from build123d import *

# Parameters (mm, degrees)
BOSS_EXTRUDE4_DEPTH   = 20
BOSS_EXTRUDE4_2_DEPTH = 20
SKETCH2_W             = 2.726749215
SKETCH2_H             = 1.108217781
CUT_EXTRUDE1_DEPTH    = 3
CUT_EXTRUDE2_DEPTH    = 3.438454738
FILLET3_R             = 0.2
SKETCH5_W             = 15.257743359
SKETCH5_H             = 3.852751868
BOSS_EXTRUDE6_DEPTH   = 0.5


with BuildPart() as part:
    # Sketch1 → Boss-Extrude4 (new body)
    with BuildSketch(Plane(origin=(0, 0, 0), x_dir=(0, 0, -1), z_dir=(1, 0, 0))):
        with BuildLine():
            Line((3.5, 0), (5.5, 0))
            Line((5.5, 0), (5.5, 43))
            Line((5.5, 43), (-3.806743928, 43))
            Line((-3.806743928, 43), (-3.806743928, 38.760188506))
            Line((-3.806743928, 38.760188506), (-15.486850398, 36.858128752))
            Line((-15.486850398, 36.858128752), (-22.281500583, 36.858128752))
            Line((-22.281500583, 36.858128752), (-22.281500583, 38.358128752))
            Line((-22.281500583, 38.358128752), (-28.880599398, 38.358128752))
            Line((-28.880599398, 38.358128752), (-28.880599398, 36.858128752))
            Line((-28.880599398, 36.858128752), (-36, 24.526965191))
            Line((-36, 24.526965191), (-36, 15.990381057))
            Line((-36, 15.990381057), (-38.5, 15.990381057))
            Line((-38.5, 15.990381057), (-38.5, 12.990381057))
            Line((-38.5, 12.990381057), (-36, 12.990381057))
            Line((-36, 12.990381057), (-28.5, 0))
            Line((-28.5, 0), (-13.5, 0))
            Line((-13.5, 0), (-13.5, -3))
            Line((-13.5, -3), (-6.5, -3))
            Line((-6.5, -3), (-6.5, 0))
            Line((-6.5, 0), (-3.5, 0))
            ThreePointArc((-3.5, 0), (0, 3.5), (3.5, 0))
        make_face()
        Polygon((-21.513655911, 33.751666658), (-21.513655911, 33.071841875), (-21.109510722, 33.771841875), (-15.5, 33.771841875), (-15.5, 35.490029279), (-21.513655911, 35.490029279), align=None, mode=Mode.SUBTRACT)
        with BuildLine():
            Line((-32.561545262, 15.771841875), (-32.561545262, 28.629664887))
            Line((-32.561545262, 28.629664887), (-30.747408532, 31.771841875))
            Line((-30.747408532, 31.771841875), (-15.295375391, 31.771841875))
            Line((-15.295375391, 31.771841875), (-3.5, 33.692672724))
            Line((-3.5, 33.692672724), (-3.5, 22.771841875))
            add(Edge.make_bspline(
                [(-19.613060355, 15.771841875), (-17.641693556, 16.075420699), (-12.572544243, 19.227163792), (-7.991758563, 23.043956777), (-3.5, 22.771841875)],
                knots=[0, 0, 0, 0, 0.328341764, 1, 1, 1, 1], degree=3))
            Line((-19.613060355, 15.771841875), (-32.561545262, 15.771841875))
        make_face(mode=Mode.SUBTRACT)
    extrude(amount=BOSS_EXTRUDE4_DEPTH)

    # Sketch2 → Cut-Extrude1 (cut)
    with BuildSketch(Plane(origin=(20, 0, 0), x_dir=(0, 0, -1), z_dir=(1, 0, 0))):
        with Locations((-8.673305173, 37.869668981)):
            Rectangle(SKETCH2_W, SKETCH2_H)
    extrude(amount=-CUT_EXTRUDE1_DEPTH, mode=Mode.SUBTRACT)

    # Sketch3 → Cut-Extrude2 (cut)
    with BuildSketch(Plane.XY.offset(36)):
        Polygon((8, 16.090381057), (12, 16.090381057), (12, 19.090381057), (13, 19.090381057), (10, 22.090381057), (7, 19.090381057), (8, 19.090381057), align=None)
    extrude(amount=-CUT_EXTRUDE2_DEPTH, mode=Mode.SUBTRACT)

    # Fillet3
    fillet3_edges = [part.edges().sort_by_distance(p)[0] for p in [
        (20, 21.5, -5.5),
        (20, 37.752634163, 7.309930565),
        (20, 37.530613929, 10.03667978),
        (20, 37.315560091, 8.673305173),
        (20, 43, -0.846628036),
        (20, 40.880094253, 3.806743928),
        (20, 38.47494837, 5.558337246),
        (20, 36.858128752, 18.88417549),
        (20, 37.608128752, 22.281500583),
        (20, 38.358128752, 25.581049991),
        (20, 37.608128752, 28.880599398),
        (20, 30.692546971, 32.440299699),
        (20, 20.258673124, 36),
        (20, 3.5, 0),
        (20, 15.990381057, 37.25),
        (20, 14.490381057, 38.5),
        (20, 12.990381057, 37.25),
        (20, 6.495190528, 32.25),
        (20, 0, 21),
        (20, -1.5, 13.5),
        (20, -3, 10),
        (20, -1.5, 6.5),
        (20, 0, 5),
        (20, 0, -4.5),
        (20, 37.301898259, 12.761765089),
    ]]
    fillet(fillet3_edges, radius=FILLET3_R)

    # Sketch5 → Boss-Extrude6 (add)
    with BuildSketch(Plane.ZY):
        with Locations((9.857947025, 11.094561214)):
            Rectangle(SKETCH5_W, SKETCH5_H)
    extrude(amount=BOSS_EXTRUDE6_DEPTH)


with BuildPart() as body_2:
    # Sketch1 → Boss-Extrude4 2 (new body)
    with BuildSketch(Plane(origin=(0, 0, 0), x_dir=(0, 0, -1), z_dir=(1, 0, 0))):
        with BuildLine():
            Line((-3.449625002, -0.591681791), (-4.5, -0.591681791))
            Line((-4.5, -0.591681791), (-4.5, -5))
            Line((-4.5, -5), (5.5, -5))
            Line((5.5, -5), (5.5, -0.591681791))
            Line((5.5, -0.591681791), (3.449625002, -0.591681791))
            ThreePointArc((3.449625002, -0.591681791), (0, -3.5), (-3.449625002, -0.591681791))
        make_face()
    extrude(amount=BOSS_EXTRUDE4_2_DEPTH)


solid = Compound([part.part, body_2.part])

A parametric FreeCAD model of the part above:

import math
import FreeCAD as App
import Part
import Sketcher
from FreeCAD import Vector
Q = App.Units.Quantity


def edges_at(feature, points):
    """Names of the edges that pass closest to the given points."""
    edges = feature.Shape.Edges
    near = lambda p: min(range(len(edges)), key=lambda i: edges[i].distToShape(Part.Vertex(*p))[0])
    return sorted({f"Edge{near(p) + 1}" for p in points})


def add_polygon(sketch, points):
    """Adds a closed chain of lines whose ends are joined by coincident constraints."""
    first, n = sketch.GeometryCount, len(points)
    for a, b in zip(points, points[1:] + points[:1]):
        sketch.addGeometry(Part.LineSegment(App.Vector(*a, 0), App.Vector(*b, 0)), False)
    for i in range(n):
        sketch.addConstraint(Sketcher.Constraint("Coincident", first + i, 2, first + (i + 1) % n, 1))

doc = App.newDocument("Part")
body = doc.addObject("PartDesign::Body", "Body")

# Sketch on YZ plane
sketch1 = body.newObject("Sketcher::SketchObject", "Sketch")
sketch1.AttachmentSupport = (doc.getObject("YZ_Plane"), [""])
sketch1.MapMode = "FlatFace"
sketch1.addGeometry(Part.LineSegment(Vector(0, -3.5, 0), Vector(0, -5.5, 0)), False)  # 0
sketch1.addGeometry(Part.LineSegment(Vector(0, -5.5, 0), Vector(43, -5.5, 0)), False)  # 1
sketch1.addGeometry(Part.LineSegment(Vector(43, -5.5, 0), Vector(43, 3.806744, 0)), False)  # 2
sketch1.addGeometry(Part.LineSegment(Vector(43, 3.806744, 0), Vector(38.760189, 3.806744, 0)), False)  # 3
sketch1.addGeometry(Part.LineSegment(Vector(38.760189, 3.806744, 0), Vector(36.858129, 15.48685, 0)), False)  # 4
sketch1.addGeometry(Part.LineSegment(Vector(36.858129, 15.48685, 0), Vector(36.858129, 22.281501, 0)), False)  # 5
sketch1.addGeometry(Part.LineSegment(Vector(36.858129, 22.281501, 0), Vector(38.358129, 22.281501, 0)), False)  # 6
sketch1.addGeometry(Part.LineSegment(Vector(38.358129, 22.281501, 0), Vector(38.358129, 28.880599, 0)), False)  # 7
sketch1.addGeometry(Part.LineSegment(Vector(38.358129, 28.880599, 0), Vector(36.858129, 28.880599, 0)), False)  # 8
sketch1.addGeometry(Part.LineSegment(Vector(36.858129, 28.880599, 0), Vector(24.526965, 36, 0)), False)  # 9
sketch1.addGeometry(Part.LineSegment(Vector(24.526965, 36, 0), Vector(15.990381, 36, 0)), False)  # 10
sketch1.addGeometry(Part.LineSegment(Vector(15.990381, 36, 0), Vector(15.990381, 38.5, 0)), False)  # 11
sketch1.addGeometry(Part.LineSegment(Vector(15.990381, 38.5, 0), Vector(12.990381, 38.5, 0)), False)  # 12
sketch1.addGeometry(Part.LineSegment(Vector(12.990381, 38.5, 0), Vector(12.990381, 36, 0)), False)  # 13
sketch1.addGeometry(Part.LineSegment(Vector(12.990381, 36, 0), Vector(0, 28.5, 0)), False)  # 14
sketch1.addGeometry(Part.LineSegment(Vector(0, 28.5, 0), Vector(0, 13.5, 0)), False)  # 15
sketch1.addGeometry(Part.LineSegment(Vector(0, 13.5, 0), Vector(-3, 13.5, 0)), False)  # 16
sketch1.addGeometry(Part.LineSegment(Vector(-3, 13.5, 0), Vector(-3, 6.5, 0)), False)  # 17
sketch1.addGeometry(Part.LineSegment(Vector(-3, 6.5, 0), Vector(0, 6.5, 0)), False)  # 18
sketch1.addGeometry(Part.LineSegment(Vector(0, 6.5, 0), Vector(0, 3.5, 0)), False)  # 19
sketch1.addGeometry(Part.ArcOfCircle(Part.Circle(Vector(0, 0, 0), Vector(0, 0, 1), 3.5), math.radians(-90), math.radians(90)), False)  # 20
sketch1.addGeometry(Part.LineSegment(Vector(15.771842, 19.61306, 0), Vector(15.771842, 32.561545, 0)), False)  # 21
sketch1.addGeometry(Part.LineSegment(Vector(15.771842, 32.561545, 0), Vector(28.629665, 32.561545, 0)), False)  # 22
sketch1.addGeometry(Part.LineSegment(Vector(28.629665, 32.561545, 0), Vector(31.771842, 30.747409, 0)), False)  # 23
sketch1.addGeometry(Part.LineSegment(Vector(31.771842, 30.747409, 0), Vector(31.771842, 15.295375, 0)), False)  # 24
sketch1.addGeometry(Part.LineSegment(Vector(31.771842, 15.295375, 0), Vector(33.692673, 3.5, 0)), False)  # 25
sketch1.addGeometry(Part.LineSegment(Vector(33.692673, 3.5, 0), Vector(22.771842, 3.5, 0)), False)  # 26
sketch1.addGeometry(Part.BSplineCurve([Vector(15.771842, 19.61306, 0), Vector(16.075421, 17.641694, 0), Vector(19.227164, 12.572544, 0), Vector(23.043957, 7.991759, 0), Vector(22.771842, 3.5, 0)], [4, 1, 4], [0, 0.328341764, 1], False, 3, [1, 1, 1, 1, 1], False), False)  # 27
add_polygon(sketch1, [(33.071842, 21.513656), (35.490029, 21.513656), (35.490029, 15.5), (33.771842, 15.5), (33.771842, 21.109511)])  # lines 28-32
sketch1.addConstraint([
    Sketcher.Constraint("Block", 27),
    Sketcher.Constraint("Coincident", 0, 2, 1, 1),
    Sketcher.Constraint("Coincident", 1, 2, 2, 1),
    Sketcher.Constraint("Coincident", 2, 2, 3, 1),
    Sketcher.Constraint("Coincident", 3, 2, 4, 1),
    Sketcher.Constraint("Coincident", 4, 2, 5, 1),
    Sketcher.Constraint("Coincident", 5, 2, 6, 1),
    Sketcher.Constraint("Coincident", 6, 2, 7, 1),
    Sketcher.Constraint("Coincident", 7, 2, 8, 1),
    Sketcher.Constraint("Coincident", 8, 2, 9, 1),
    Sketcher.Constraint("Coincident", 9, 2, 10, 1),
    Sketcher.Constraint("Coincident", 10, 2, 11, 1),
    Sketcher.Constraint("Coincident", 11, 2, 12, 1),
    Sketcher.Constraint("Coincident", 12, 2, 13, 1),
    Sketcher.Constraint("Coincident", 13, 2, 14, 1),
    Sketcher.Constraint("Coincident", 14, 2, 15, 1),
    Sketcher.Constraint("Coincident", 15, 2, 16, 1),
    Sketcher.Constraint("Coincident", 16, 2, 17, 1),
    Sketcher.Constraint("Coincident", 17, 2, 18, 1),
    Sketcher.Constraint("Coincident", 18, 2, 19, 1),
    Sketcher.Constraint("Coincident", 19, 2, 20, 2),
    Sketcher.Constraint("Coincident", 20, 1, 0, 1),
    Sketcher.Constraint("Coincident", 21, 2, 22, 1),
    Sketcher.Constraint("Coincident", 22, 2, 23, 1),
    Sketcher.Constraint("Coincident", 23, 2, 24, 1),
    Sketcher.Constraint("Coincident", 24, 2, 25, 1),
    Sketcher.Constraint("Coincident", 25, 2, 26, 1),
    Sketcher.Constraint("Coincident", 26, 2, 27, 2),
    Sketcher.Constraint("Coincident", 27, 1, 21, 1),
    Sketcher.Constraint("Vertical", 0),
    Sketcher.Constraint("Horizontal", 1),
    Sketcher.Constraint("Vertical", 2),
    Sketcher.Constraint("Horizontal", 3),
    Sketcher.Constraint("Vertical", 5),
    Sketcher.Constraint("Horizontal", 6),
    Sketcher.Constraint("Vertical", 7),
    Sketcher.Constraint("Horizontal", 8),
    Sketcher.Constraint("Horizontal", 10),
    Sketcher.Constraint("Vertical", 11),
    Sketcher.Constraint("Horizontal", 12),
    Sketcher.Constraint("Vertical", 13),
    Sketcher.Constraint("Vertical", 15),
    Sketcher.Constraint("Horizontal", 16),
    Sketcher.Constraint("Vertical", 17),
    Sketcher.Constraint("Horizontal", 18),
    Sketcher.Constraint("Vertical", 19),
    Sketcher.Constraint("Vertical", 21),
    Sketcher.Constraint("Horizontal", 22),
    Sketcher.Constraint("Vertical", 24),
    Sketcher.Constraint("Horizontal", 26),
    Sketcher.Constraint("Horizontal", 28),
    Sketcher.Constraint("Vertical", 29),
    Sketcher.Constraint("Horizontal", 30),
    Sketcher.Constraint("Vertical", 31),
    Sketcher.Constraint("Coincident", 20, 3, -1, 1),
    Sketcher.Constraint("PointOnObject", 0, 2, -2),
    Sketcher.Constraint("PointOnObject", 14, 2, -2),
    Sketcher.Constraint("PointOnObject", 18, 2, -2),
    Sketcher.Constraint("Parallel", 9, 23),
    Sketcher.Constraint("Parallel", 4, 25),
    Sketcher.Constraint("Parallel", 23, 32),
    Sketcher.Constraint("Horizontal", 10, 2, 13, 2),
    Sketcher.Constraint("Horizontal", 19, 2, 25, 2),
    Sketcher.Constraint("Vertical", 5, 2, 8, 2),
    Sketcher.Constraint("Equal", 12, 16),
    Sketcher.Constraint("Equal", 18, 19),
    Sketcher.Constraint("DistanceX", 1, 1, 1, 2, Q("43 mm")),
    Sketcher.Constraint("DistanceX", 12, 2, 12, 1, Q("3 mm")),
    Sketcher.Constraint("DistanceY", 0, 2, 0, 1, Q("2 mm")),
    Sketcher.Constraint("DistanceY", 15, 2, 15, 1, Q("15 mm")),
    Sketcher.Constraint("DistanceY", 17, 2, 17, 1, Q("7 mm")),
    Sketcher.Constraint("Angle", 9, Q("150 deg")),
    Sketcher.Constraint("Angle", 14, Q("-150 deg")),
    Sketcher.Constraint("Distance", 14, Q("15 mm")),
    Sketcher.Constraint("DistanceX", 6, 1, 6, 2, Q("1.5 mm")),
    Sketcher.Constraint("DistanceY", 11, 1, 11, 2, Q("2.5 mm")),
    Sketcher.Constraint("DistanceX", 26, 2, 24, 2, Q("9 mm")),
    Sketcher.Constraint("DistanceX", 24, 2, 30, 2, Q("2 mm")),
    Sketcher.Constraint("DistanceY", -1, 1, 29, 2, Q("15.5 mm")),
    Sketcher.Constraint("DistanceX", 32, 2, 31, 2, Q("0.7 mm")),
    Sketcher.Constraint("DistanceY", 7, 1, 7, 2, Q("6.599099 mm")),
    Sketcher.Constraint("Distance", 9, Q("14.238801 mm")),
    Sketcher.Constraint("DistanceX", 3, 2, 3, 1, Q("4.239811 mm")),
    Sketcher.Constraint("DistanceX", 26, 2, 26, 1, Q("10.920831 mm")),
    Sketcher.Constraint("DistanceY", 5, 1, 5, 2, Q("6.79465 mm")),
    Sketcher.Constraint("DistanceY", 31, 1, 31, 2, Q("5.609511 mm")),
    Sketcher.Constraint("DistanceX", 9, 2, 22, 2, Q("4.1027 mm")),
    Sketcher.Constraint("DistanceX", 28, 2, 5, 2, Q("1.368099 mm")),
    Sketcher.Constraint("Distance", 25, Q("11.950752 mm")),
    Sketcher.Constraint("DistanceX", 10, 2, 10, 1, Q("8.536584 mm")),
    Sketcher.Constraint("DistanceY", 21, 1, 21, 2, Q("12.948485 mm")),
])
pad1 = body.newObject("PartDesign::Pad", "Pad")
pad1.Profile = sketch1
pad1.Length = 20

# Sketch on YZ plane
sketch2 = body.newObject("Sketcher::SketchObject", "Sketch001")
sketch2.AttachmentSupport = (doc.getObject("YZ_Plane"), [""])
sketch2.MapMode = "FlatFace"
sketch2.AttachmentOffset = App.Placement(Vector(0, 0, 20), App.Rotation())
add_polygon(sketch2, [(38.4, 10), (37.3, 10), (37.3, 7.3), (38.4, 7.3)])  # lines 0-3
sketch2.addConstraint([
    Sketcher.Constraint("Horizontal", 0),
    Sketcher.Constraint("Vertical", 1),
    Sketcher.Constraint("Horizontal", 2),
    Sketcher.Constraint("Vertical", 3),
    Sketcher.Constraint("DistanceY", 1, 2, 1, 1, Q("2.726749 mm")),
    Sketcher.Constraint("DistanceX", 0, 2, 0, 1, Q("1.108218 mm")),
    Sketcher.Constraint("DistanceX", -1, 1, 0, 2, Q("37.31556 mm")),
    Sketcher.Constraint("DistanceY", -1, 1, 0, 2, Q("10.03668 mm")),
])
pocket1 = body.newObject("PartDesign::Pocket", "Pocket")
pocket1.Profile = sketch2
pocket1.Length = 3

# Sketch on XY plane
sketch3 = body.newObject("Sketcher::SketchObject", "Sketch002")
sketch3.AttachmentSupport = (doc.getObject("XY_Plane"), [""])
sketch3.MapMode = "FlatFace"
sketch3.AttachmentOffset = App.Placement(Vector(0, 0, 36), App.Rotation())
add_polygon(sketch3, [(8, 16.1), (12, 16.1), (12, 19.1), (13, 19.1), (10, 22.1), (7, 19.1), (8, 19.1)])  # lines 0-6
sketch3.addConstraint([
    Sketcher.Constraint("Horizontal", 0),
    Sketcher.Constraint("Vertical", 1),
    Sketcher.Constraint("Horizontal", 2),
    Sketcher.Constraint("Horizontal", 5),
    Sketcher.Constraint("Vertical", 6),
    Sketcher.Constraint("Perpendicular", 3, 4),
    Sketcher.Constraint("Horizontal", 2, 2, 4, 2),
    Sketcher.Constraint("Equal", 2, 5),
    Sketcher.Constraint("Equal", 3, 4),
    Sketcher.Constraint("DistanceX", 0, 1, 0, 2, Q("4 mm")),
    Sketcher.Constraint("DistanceX", 2, 1, 2, 2, Q("1 mm")),
    Sketcher.Constraint("DistanceY", 1, 1, 1, 2, Q("3 mm")),
    Sketcher.Constraint("DistanceX", -1, 1, 0, 2, Q("12 mm")),
    Sketcher.Constraint("DistanceY", -1, 1, 0, 2, Q("16.090381 mm")),
])
pocket2 = body.newObject("PartDesign::Pocket", "Pocket001")
pocket2.Profile = sketch3
pocket2.Length = 3.438455
doc.recompute()

fillet = body.newObject("PartDesign::Fillet", "Fillet")
fillet.Base = (pocket2, edges_at(pocket2, [
    (20, 21.5, -5.5),
    (20, 37.753, 7.31),
    (20, 37.531, 10.037),
    (20, 37.316, 8.673),
    (20, 43, -0.847),
    (20, 40.88, 3.807),
    (20, 38.475, 5.558),
    (20, 36.858, 18.884),
    (20, 37.608, 22.282),
    (20, 38.358, 25.581),
    (20, 37.608, 28.881),
    (20, 30.693, 32.44),
    (20, 20.259, 36),
    (20, 3.5, 0),
    (20, 15.99, 37.25),
    (20, 14.49, 38.5),
    (20, 12.99, 37.25),
    (20, 6.495, 32.25),
    (20, 0, 21),
    (20, -1.5, 13.5),
    (20, -3, 10),
    (20, -1.5, 6.5),
    (20, 0, 5),
    (20, 0, -4.5),
    (20, 37.302, 12.762),
]))
fillet.Radius = 0.2

# Sketch on YZ plane
sketch4 = body.newObject("Sketcher::SketchObject", "Sketch003")
sketch4.AttachmentSupport = (doc.getObject("YZ_Plane"), [""])
sketch4.MapMode = "FlatFace"
add_polygon(sketch4, [(13, 2.2), (9.2, 2.2), (9.2, 17.5), (13, 17.5)])  # lines 0-3
sketch4.addConstraint([
    Sketcher.Constraint("Horizontal", 0),
    Sketcher.Constraint("Vertical", 1),
    Sketcher.Constraint("Horizontal", 2),
    Sketcher.Constraint("Vertical", 3),
    Sketcher.Constraint("DistanceX", 0, 2, 0, 1, Q("3.852752 mm")),
    Sketcher.Constraint("DistanceY", 1, 1, 1, 2, Q("15.257743 mm")),
    Sketcher.Constraint("DistanceY", -1, 1, 1, 2, Q("17.486819 mm")),
    Sketcher.Constraint("DistanceX", -1, 1, 0, 2, Q("9.168185 mm")),
])
pad2 = body.newObject("PartDesign::Pad", "Pad001")
pad2.Profile = sketch4
pad2.Length = 0.5
pad2.Reversed = True
body2 = doc.addObject("PartDesign::Body", "Body001")

# Sketch on YZ plane
sketch5 = body2.newObject("Sketcher::SketchObject", "Sketch004")
sketch5.AttachmentSupport = (doc.getObject("YZ_Plane001"), [""])
sketch5.MapMode = "FlatFace"
sketch5.addGeometry([
    Part.LineSegment(Vector(-0.6, 3.4, 0), Vector(-0.6, 4.5, 0)),  # 0
    Part.LineSegment(Vector(-0.6, 4.5, 0), Vector(-5, 4.5, 0)),  # 1
    Part.LineSegment(Vector(-5, 4.5, 0), Vector(-5, -5.5, 0)),  # 2
    Part.LineSegment(Vector(-5, -5.5, 0), Vector(-0.6, -5.5, 0)),  # 3
    Part.LineSegment(Vector(-0.6, -5.5, 0), Vector(-0.6, -3.4, 0)),  # 4
    Part.ArcOfCircle(Part.Circle(Vector(0, 0, 0), Vector(0, 0, 1), 3.5), math.radians(100), math.radians(260)),  # 5
], False)
sketch5.addConstraint([
    Sketcher.Constraint("Coincident", 0, 2, 1, 1),
    Sketcher.Constraint("Coincident", 1, 2, 2, 1),
    Sketcher.Constraint("Coincident", 2, 2, 3, 1),
    Sketcher.Constraint("Coincident", 3, 2, 4, 1),
    Sketcher.Constraint("Coincident", 4, 2, 5, 2),
    Sketcher.Constraint("Coincident", 5, 1, 0, 1),
    Sketcher.Constraint("Vertical", 0),
    Sketcher.Constraint("Horizontal", 1),
    Sketcher.Constraint("Vertical", 2),
    Sketcher.Constraint("Horizontal", 3),
    Sketcher.Constraint("Vertical", 4),
    Sketcher.Constraint("Coincident", 5, 3, -1, 1),
    Sketcher.Constraint("Vertical", 0, 2, 3, 2),
    Sketcher.Constraint("Radius", 5, Q("3.5 mm")),
    Sketcher.Constraint("DistanceY", 2, 2, 2, 1, Q("10 mm")),
    Sketcher.Constraint("DistanceX", 1, 2, -1, 1, Q("5 mm")),
    Sketcher.Constraint("DistanceY", -1, 1, 0, 2, Q("4.5 mm")),
    Sketcher.Constraint("DistanceX", 1, 2, 1, 1, Q("4.408318 mm")),
])
pad3 = body2.newObject("PartDesign::Pad", "Pad002")
pad3.Profile = sketch5
pad3.Length = 20

doc.recompute()
